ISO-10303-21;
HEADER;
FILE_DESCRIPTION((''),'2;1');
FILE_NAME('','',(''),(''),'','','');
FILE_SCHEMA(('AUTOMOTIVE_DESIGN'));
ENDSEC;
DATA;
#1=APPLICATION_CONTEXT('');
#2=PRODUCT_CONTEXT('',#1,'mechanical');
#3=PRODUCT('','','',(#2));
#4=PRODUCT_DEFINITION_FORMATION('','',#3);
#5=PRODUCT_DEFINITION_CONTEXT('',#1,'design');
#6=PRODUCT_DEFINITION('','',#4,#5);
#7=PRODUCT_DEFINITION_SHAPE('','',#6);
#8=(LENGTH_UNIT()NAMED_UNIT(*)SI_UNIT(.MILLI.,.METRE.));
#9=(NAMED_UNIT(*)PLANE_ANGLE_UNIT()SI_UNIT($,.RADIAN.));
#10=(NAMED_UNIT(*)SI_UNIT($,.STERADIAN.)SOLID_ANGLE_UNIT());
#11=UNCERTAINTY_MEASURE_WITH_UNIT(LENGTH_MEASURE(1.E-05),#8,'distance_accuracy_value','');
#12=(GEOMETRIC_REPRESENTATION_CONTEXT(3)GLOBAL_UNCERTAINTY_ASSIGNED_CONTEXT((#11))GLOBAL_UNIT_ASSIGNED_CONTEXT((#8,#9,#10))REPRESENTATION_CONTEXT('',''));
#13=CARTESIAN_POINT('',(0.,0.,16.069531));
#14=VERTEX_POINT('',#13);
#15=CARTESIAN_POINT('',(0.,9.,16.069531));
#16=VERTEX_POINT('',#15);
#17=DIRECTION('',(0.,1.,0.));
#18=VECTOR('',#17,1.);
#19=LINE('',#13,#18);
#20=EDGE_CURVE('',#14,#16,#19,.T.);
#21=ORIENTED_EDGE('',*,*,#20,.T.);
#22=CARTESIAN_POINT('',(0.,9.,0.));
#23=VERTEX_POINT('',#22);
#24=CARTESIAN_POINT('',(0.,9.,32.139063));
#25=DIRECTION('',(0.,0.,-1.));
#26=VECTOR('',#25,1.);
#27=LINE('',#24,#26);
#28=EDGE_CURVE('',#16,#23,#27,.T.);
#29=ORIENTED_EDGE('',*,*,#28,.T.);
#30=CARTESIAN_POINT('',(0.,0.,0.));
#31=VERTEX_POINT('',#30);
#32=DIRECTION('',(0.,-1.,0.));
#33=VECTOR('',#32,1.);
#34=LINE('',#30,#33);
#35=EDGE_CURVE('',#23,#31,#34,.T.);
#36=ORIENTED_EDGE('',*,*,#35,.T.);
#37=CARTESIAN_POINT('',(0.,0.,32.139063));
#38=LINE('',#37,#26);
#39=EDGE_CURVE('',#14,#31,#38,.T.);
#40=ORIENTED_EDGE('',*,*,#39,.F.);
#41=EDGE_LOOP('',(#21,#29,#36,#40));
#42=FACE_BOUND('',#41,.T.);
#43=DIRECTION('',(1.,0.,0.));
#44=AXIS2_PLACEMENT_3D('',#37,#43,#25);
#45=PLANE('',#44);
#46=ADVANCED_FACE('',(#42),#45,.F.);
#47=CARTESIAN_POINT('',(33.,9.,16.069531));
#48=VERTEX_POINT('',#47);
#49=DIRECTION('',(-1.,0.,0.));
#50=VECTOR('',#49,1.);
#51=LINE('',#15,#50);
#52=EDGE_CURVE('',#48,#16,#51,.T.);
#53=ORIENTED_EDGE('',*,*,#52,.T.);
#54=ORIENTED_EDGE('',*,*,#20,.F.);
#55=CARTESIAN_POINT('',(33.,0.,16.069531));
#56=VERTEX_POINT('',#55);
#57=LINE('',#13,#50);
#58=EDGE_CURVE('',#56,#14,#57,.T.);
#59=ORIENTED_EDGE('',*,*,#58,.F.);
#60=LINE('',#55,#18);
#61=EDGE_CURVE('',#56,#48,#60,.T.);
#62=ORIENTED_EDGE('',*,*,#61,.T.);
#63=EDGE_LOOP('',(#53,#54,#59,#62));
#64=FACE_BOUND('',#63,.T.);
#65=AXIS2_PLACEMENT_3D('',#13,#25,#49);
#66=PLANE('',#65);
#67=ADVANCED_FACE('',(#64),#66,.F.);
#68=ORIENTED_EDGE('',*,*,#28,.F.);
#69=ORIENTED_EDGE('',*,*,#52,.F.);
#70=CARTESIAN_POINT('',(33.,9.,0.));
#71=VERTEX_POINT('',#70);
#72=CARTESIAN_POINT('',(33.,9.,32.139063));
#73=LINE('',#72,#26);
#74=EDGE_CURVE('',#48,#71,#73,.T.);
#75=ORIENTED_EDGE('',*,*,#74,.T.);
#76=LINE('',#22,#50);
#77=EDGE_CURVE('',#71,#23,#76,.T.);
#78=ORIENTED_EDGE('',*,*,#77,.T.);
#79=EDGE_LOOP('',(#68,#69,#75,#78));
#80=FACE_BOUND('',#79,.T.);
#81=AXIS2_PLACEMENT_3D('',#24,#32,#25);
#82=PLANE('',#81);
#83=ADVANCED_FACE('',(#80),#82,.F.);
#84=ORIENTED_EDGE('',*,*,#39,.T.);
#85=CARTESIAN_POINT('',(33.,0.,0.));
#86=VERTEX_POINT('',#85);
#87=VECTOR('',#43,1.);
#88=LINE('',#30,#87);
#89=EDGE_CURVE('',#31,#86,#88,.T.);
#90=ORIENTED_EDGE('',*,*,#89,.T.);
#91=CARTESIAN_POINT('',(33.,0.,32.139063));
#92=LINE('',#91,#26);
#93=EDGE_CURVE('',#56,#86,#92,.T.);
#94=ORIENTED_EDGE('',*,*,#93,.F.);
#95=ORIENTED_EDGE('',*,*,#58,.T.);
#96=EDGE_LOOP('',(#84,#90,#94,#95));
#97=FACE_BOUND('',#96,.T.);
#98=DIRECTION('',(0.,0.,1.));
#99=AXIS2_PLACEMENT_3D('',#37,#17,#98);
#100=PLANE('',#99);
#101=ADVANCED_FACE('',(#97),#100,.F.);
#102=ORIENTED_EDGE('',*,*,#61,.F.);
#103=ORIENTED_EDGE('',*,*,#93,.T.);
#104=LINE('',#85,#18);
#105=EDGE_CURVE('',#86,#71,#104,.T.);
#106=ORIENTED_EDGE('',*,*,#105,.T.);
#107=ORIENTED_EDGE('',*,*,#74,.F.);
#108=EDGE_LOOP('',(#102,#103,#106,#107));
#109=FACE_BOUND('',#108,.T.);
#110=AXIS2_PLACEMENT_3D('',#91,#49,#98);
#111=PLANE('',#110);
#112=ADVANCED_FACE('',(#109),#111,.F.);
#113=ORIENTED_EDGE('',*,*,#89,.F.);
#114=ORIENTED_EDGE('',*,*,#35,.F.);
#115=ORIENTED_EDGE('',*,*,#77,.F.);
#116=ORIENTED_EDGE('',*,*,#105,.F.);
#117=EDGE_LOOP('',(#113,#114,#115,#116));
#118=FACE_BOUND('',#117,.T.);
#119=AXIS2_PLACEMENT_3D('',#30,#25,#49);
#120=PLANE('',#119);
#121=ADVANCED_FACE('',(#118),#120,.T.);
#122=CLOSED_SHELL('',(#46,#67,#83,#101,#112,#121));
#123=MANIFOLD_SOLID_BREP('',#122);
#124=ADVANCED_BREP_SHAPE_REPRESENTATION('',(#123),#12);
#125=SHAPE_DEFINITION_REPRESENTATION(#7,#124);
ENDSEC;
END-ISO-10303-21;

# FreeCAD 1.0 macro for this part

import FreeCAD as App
import Part
import Sketcher
Q = App.Units.Quantity


def add_polygon(sketch, points):
    """Adds a closed chain of lines whose ends are joined by coincident constraints."""
    first, n = sketch.GeometryCount, len(points)
    for a, b in zip(points, points[1:] + points[:1]):
        sketch.addGeometry(Part.LineSegment(App.Vector(*a, 0), App.Vector(*b, 0)), False)
    for i in range(n):
        sketch.addConstraint(Sketcher.Constraint("Coincident", first + i, 2, first + (i + 1) % n, 1))

doc = App.newDocument("Part")
body = doc.addObject("PartDesign::Body", "Body")

# Sketch on XY plane
sketch1 = doc.addObject("Sketcher::SketchObject", "Sketch")
body.addObject(sketch1)
sketch1.AttachmentSupport = (doc.XY_Plane, [""])
sketch1.MapMode = "FlatFace"
add_polygon(sketch1, [(0, 9), (0, 0), (33, 0), (33, 9)])  # lines 0-3
sketch1.addConstraint([
    Sketcher.Constraint("Vertical", 0),
    Sketcher.Constraint("Horizontal", 1),
    Sketcher.Constraint("Vertical", 2),
    Sketcher.Constraint("Horizontal", 3),
    Sketcher.Constraint("Coincident", 0, 2, -1, 1),
    Sketcher.Constraint("DistanceX", 1, 1, 1, 2, Q("33 mm")),
    Sketcher.Constraint("DistanceY", 0, 2, 0, 1, Q("9 mm")),
])
pad1 = doc.addObject("PartDesign::Pad", "Pad")
body.addObject(pad1)
pad1.Profile = sketch1
pad1.Length = 32.139063

# Sketch on XZ plane
sketch2 = doc.addObject("Sketcher::SketchObject", "Sketch001")
body.addObject(sketch2)
sketch2.AttachmentSupport = (doc.XZ_Plane, [""])
sketch2.MapMode = "FlatFace"
sketch2.AttachmentOffset = App.Placement(App.Vector(0, 0, -9), App.Rotation())
add_polygon(sketch2, [(0, 16.069531), (0, 32.139063), (33, 32.139063), (33, 16.069531)])  # lines 0-3
sketch2.addConstraint([
    Sketcher.Constraint("Vertical", 0),
    Sketcher.Constraint("Horizontal", 1),
    Sketcher.Constraint("Vertical", 2),
    Sketcher.Constraint("Horizontal", 3),
    Sketcher.Constraint("PointOnObject", 0, 2, -2),
    Sketcher.Constraint("DistanceX", 1, 1, 1, 2, Q("33 mm")),
    Sketcher.Constraint("DistanceY", 0, 1, 0, 2, Q("16.069531 mm")),
    Sketcher.Constraint("DistanceY", -1, 1, 2, 2, Q("16.069531 mm")),
])
pocket1 = doc.addObject("PartDesign::Pocket", "Pocket")
body.addObject(pocket1)
pocket1.Profile = sketch2
pocket1.Type = "ThroughAll"
pocket1.Reversed = True

doc.recompute()
